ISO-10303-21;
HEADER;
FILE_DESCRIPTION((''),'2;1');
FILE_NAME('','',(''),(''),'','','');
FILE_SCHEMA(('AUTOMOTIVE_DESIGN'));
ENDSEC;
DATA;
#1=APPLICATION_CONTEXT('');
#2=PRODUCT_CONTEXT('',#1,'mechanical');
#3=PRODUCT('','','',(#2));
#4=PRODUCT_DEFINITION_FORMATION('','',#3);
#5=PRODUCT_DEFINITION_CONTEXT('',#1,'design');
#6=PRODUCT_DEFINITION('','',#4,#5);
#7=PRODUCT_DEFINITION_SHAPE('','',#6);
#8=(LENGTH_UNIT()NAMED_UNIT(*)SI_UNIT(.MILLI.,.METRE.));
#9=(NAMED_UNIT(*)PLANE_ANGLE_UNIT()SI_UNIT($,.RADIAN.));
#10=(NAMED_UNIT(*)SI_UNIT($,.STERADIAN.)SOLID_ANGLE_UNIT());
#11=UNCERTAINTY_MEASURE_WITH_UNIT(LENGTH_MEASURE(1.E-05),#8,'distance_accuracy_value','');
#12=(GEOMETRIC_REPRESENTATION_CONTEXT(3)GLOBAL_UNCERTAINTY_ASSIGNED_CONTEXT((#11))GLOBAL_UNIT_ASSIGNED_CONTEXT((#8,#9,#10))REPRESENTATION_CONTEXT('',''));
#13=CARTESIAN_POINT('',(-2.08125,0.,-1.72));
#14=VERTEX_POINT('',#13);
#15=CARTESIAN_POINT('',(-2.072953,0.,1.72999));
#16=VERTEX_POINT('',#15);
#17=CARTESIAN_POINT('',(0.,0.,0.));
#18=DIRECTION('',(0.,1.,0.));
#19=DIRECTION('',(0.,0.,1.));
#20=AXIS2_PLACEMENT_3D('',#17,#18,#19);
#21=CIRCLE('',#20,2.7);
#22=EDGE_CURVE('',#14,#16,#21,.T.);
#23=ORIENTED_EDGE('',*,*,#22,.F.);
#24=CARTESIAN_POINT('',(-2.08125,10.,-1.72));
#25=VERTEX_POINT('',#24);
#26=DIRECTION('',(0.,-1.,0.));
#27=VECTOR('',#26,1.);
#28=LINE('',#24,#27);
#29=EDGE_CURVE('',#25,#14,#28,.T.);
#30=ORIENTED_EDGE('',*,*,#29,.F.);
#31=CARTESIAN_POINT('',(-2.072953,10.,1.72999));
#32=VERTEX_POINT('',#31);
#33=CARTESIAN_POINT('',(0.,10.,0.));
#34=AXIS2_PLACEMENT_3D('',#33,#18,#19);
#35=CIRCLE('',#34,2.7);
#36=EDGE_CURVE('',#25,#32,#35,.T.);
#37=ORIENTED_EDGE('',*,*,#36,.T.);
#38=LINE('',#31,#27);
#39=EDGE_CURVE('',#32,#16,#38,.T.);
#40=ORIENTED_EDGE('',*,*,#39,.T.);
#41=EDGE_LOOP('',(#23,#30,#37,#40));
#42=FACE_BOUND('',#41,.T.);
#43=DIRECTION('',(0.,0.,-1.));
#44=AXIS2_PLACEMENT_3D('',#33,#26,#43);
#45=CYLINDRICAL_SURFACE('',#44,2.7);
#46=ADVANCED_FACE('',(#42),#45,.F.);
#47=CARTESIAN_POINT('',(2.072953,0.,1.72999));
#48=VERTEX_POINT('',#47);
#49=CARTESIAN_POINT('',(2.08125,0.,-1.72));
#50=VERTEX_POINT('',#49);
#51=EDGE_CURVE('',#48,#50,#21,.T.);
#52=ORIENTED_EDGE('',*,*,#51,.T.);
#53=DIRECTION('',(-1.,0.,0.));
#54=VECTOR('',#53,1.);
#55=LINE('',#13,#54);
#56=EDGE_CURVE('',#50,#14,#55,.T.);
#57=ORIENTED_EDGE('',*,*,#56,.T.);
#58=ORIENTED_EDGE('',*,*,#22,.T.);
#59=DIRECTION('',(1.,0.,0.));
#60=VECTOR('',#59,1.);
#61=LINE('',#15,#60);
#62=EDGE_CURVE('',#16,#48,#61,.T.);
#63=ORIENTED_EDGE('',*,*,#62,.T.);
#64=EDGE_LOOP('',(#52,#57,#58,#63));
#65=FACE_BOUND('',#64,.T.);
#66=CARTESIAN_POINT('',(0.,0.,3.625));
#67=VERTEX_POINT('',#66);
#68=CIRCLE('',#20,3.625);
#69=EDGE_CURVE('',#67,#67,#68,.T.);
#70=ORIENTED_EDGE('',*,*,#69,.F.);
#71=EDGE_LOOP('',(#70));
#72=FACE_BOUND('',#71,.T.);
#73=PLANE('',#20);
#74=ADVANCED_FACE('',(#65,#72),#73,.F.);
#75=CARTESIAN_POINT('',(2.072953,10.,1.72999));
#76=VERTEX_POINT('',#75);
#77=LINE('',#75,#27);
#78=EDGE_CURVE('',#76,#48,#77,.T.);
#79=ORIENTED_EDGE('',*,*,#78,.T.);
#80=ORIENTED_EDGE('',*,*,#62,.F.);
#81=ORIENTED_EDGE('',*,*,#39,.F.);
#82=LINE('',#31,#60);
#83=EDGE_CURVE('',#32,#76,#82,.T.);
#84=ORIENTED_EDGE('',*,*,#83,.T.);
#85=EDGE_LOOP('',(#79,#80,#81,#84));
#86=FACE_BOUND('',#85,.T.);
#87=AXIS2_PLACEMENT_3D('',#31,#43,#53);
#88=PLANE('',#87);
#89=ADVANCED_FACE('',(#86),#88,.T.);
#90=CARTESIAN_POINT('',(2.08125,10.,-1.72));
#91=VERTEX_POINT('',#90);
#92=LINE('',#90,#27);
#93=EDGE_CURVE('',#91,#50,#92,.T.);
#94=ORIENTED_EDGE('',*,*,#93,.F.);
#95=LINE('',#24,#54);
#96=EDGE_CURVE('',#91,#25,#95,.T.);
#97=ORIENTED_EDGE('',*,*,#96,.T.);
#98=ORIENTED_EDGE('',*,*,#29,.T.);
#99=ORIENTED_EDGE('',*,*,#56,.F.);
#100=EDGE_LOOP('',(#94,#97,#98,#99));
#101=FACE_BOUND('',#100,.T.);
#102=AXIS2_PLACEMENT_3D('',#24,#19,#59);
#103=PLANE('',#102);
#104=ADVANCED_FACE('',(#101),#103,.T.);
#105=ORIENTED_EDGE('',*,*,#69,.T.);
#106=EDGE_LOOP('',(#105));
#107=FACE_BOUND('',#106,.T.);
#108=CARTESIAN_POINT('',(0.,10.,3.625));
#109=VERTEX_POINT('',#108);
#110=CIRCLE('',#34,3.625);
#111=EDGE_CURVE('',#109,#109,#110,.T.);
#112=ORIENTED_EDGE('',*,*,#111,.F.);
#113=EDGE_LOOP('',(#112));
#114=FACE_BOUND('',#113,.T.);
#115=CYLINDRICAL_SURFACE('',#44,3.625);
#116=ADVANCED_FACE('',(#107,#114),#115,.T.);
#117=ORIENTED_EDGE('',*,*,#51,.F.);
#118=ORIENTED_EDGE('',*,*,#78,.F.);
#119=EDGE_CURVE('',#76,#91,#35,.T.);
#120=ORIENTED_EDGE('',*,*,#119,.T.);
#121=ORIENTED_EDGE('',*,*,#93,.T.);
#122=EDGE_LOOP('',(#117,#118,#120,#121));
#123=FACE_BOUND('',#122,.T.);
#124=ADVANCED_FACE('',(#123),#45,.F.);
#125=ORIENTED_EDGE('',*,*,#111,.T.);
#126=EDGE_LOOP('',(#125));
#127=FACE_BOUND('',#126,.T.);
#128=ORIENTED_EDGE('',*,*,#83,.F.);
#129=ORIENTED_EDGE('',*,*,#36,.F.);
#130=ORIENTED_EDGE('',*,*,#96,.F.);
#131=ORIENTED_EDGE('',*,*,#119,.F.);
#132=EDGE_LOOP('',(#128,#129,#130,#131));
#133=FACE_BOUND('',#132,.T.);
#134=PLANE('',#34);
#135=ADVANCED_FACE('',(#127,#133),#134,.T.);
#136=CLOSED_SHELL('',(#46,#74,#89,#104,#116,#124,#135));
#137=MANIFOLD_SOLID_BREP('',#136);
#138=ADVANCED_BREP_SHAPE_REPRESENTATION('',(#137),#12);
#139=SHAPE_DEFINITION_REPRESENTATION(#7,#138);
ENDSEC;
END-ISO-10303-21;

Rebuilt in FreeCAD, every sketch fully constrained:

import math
import FreeCAD as App
import Part
import Sketcher

doc = App.newDocument("Part")
body = doc.addObject("PartDesign::Body", "Body")

sketch1 = body.newObject("Sketcher::SketchObject", "Sketch")
sketch1.AttachmentSupport = (doc.getObject("XZ_Plane"), [""])
sketch1.MapMode = "FlatFace"
sketch1.addGeometry([
    Part.Circle(App.Vector(0, 0, 0), App.Vector(0, 0, 1), 3.6),
    Part.ArcOfCircle(Part.Circle(App.Vector(0, 0, 0), App.Vector(0, 0, 1), 2.7), math.radians(140), math.radians(220)),
    Part.LineSegment(App.Vector(-2.1, -1.7, 0), App.Vector(2.1, -1.7, 0)),
    Part.ArcOfCircle(Part.Circle(App.Vector(0, 0, 0), App.Vector(0, 0, 1), 2.7), math.radians(-40), math.radians(40)),
    Part.LineSegment(App.Vector(2.1, 1.7, 0), App.Vector(-2.1, 1.7, 0)),
], False)
sketch1.addConstraint([
    Sketcher.Constraint("Coincident", 1, 2, 2, 1),
    Sketcher.Constraint("Coincident", 2, 2, 3, 1),
    Sketcher.Constraint("Coincident", 3, 2, 4, 1),
    Sketcher.Constraint("Coincident", 4, 2, 1, 1),
    Sketcher.Constraint("Horizontal", 2),
    Sketcher.Constraint("Horizontal", 4),
    Sketcher.Constraint("Coincident", 0, 3, -1, 1),
    Sketcher.Constraint("Coincident", 1, 3, -1, 1),
    Sketcher.Constraint("Coincident", 3, 3, -1, 1),
    Sketcher.Constraint("Equal", 1, 3),
    Sketcher.Constraint("Radius", 1, 2.7),
    Sketcher.Constraint("Diameter", 0, 7.25),
    Sketcher.Constraint("DistanceY", 1, 2, -1, 1, 1.72),
    Sketcher.Constraint("DistanceX", 4, 2, 4, 1, 4.145906),
])
pad1 = body.newObject("PartDesign::Pad", "Pad")
pad1.Profile = sketch1
pad1.Length = 10
pad1.Reversed = True

doc.recompute()
